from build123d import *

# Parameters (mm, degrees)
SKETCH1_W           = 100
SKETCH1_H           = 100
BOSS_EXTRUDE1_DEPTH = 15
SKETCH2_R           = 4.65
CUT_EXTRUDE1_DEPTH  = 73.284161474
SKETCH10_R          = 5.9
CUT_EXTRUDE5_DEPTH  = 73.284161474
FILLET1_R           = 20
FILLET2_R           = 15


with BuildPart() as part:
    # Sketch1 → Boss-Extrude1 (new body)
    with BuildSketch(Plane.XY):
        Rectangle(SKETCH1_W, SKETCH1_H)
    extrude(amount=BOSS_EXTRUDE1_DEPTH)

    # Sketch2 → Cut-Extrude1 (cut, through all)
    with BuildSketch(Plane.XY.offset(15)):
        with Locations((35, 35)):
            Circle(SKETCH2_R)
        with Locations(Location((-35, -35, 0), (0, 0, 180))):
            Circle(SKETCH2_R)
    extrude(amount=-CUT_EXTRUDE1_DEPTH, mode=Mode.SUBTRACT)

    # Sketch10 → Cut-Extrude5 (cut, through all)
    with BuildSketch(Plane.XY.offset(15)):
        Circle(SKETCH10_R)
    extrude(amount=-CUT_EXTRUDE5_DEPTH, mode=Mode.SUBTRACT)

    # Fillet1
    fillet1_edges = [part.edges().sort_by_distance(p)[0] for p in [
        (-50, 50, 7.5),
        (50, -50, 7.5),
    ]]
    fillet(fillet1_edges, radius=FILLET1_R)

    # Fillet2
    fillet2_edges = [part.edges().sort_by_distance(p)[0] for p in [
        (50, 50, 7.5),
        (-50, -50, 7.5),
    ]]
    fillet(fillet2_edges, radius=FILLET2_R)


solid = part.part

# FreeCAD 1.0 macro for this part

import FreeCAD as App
import Part
import Sketcher

V = App.Vector
Q = App.Units.Quantity


def edges_at(feature, points):
    """Names of the edges that pass closest to the given points."""
    edges = feature.Shape.Edges
    near = lambda p: min(range(len(edges)), key=lambda i: edges[i].distToShape(Part.Vertex(*p))[0])
    return sorted({f"Edge{near(p) + 1}" for p in points})


def add_polygon(sketch, points):
    """Adds a closed chain of lines whose ends are joined by coincident constraints."""
    first, n = sketch.GeometryCount, len(points)
    for a, b in zip(points, points[1:] + points[:1]):
        sketch.addGeometry(Part.LineSegment(App.Vector(*a, 0), App.Vector(*b, 0)), False)
    for i in range(n):
        sketch.addConstraint(Sketcher.Constraint("Coincident", first + i, 2, first + (i + 1) % n, 1))

doc = App.newDocument("Part")
body = doc.addObject("PartDesign::Body", "Body")

# Sketch on XY plane
sketch1 = body.newObject("Sketcher::SketchObject", "Sketch")
sketch1.AttachmentSupport = (doc.getObject("XY_Plane"), [""])
sketch1.MapMode = "FlatFace"
add_polygon(sketch1, [(-50, 50), (-50, -50), (50, -50), (50, 50)])  # lines 0-3
sketch1.addConstraint([
    Sketcher.Constraint("Vertical", 0),
    Sketcher.Constraint("Horizontal", 1),
    Sketcher.Constraint("Vertical", 2),
    Sketcher.Constraint("Horizontal", 3),
    Sketcher.Constraint("Symmetric", 0, 2, 2, 2, -1, 1),
    Sketcher.Constraint("Equal", 3, 0),
    Sketcher.Constraint("DistanceX", 1, 1, 1, 2, Q("100 mm")),
])
pad1 = body.newObject("PartDesign::Pad", "Pad")
pad1.Profile = sketch1
pad1.Length = 15

# Sketch on XY plane
sketch2 = body.newObject("Sketcher::SketchObject", "Sketch001")
sketch2.AttachmentSupport = (doc.getObject("XY_Plane"), [""])
sketch2.MapMode = "FlatFace"
sketch2.AttachmentOffset = App.Placement(V(0, 0, 15), App.Rotation())
sketch2.addGeometry([
    Part.Circle(V(35, 35, 0), V(0, 0, 1), 4.65),
    Part.Circle(V(-35, -35, 0), V(0, 0, 1), 4.65),
], False)
sketch2.addConstraint([
    Sketcher.Constraint("Equal", 0, 1),
    Sketcher.Constraint("Symmetric", 0, 3, 1, 3, -1, 1),
    Sketcher.Constraint("Diameter", 0, Q("9.3 mm")),
    Sketcher.Constraint("DistanceX", -1, 1, 0, 3, Q("35 mm")),
    Sketcher.Constraint("DistanceY", -1, 1, 0, 3, Q("35 mm")),
])
pocket1 = body.newObject("PartDesign::Pocket", "Pocket")
pocket1.Profile = sketch2
pocket1.Type = "ThroughAll"

# Sketch on XY plane
sketch3 = body.newObject("Sketcher::SketchObject", "Sketch002")
sketch3.AttachmentSupport = (doc.getObject("XY_Plane"), [""])
sketch3.MapMode = "FlatFace"
sketch3.AttachmentOffset = App.Placement(V(0, 0, 15), App.Rotation())
sketch3.addGeometry(Part.Circle(V(0, 0, 0), V(0, 0, 1), 5.9), False)
sketch3.addConstraint([
    Sketcher.Constraint("Coincident", 0, 3, -1, 1),
    Sketcher.Constraint("Diameter", 0, Q("11.8 mm")),
])
pocket2 = body.newObject("PartDesign::Pocket", "Pocket001")
pocket2.Profile = sketch3
pocket2.Type = "ThroughAll"
doc.recompute()

fillet = body.newObject("PartDesign::Fillet", "Fillet")
fillet.Base = (pocket2, edges_at(pocket2, [(-50, 50, 7.5), (50, -50, 7.5)]))
fillet.Radius = 20
doc.recompute()

fillet2 = body.newObject("PartDesign::Fillet", "Fillet001")
fillet2.Base = (fillet, edges_at(fillet, [(50, 50, 7.5), (-50, -50, 7.5)]))
fillet2.Radius = 15

doc.recompute()
